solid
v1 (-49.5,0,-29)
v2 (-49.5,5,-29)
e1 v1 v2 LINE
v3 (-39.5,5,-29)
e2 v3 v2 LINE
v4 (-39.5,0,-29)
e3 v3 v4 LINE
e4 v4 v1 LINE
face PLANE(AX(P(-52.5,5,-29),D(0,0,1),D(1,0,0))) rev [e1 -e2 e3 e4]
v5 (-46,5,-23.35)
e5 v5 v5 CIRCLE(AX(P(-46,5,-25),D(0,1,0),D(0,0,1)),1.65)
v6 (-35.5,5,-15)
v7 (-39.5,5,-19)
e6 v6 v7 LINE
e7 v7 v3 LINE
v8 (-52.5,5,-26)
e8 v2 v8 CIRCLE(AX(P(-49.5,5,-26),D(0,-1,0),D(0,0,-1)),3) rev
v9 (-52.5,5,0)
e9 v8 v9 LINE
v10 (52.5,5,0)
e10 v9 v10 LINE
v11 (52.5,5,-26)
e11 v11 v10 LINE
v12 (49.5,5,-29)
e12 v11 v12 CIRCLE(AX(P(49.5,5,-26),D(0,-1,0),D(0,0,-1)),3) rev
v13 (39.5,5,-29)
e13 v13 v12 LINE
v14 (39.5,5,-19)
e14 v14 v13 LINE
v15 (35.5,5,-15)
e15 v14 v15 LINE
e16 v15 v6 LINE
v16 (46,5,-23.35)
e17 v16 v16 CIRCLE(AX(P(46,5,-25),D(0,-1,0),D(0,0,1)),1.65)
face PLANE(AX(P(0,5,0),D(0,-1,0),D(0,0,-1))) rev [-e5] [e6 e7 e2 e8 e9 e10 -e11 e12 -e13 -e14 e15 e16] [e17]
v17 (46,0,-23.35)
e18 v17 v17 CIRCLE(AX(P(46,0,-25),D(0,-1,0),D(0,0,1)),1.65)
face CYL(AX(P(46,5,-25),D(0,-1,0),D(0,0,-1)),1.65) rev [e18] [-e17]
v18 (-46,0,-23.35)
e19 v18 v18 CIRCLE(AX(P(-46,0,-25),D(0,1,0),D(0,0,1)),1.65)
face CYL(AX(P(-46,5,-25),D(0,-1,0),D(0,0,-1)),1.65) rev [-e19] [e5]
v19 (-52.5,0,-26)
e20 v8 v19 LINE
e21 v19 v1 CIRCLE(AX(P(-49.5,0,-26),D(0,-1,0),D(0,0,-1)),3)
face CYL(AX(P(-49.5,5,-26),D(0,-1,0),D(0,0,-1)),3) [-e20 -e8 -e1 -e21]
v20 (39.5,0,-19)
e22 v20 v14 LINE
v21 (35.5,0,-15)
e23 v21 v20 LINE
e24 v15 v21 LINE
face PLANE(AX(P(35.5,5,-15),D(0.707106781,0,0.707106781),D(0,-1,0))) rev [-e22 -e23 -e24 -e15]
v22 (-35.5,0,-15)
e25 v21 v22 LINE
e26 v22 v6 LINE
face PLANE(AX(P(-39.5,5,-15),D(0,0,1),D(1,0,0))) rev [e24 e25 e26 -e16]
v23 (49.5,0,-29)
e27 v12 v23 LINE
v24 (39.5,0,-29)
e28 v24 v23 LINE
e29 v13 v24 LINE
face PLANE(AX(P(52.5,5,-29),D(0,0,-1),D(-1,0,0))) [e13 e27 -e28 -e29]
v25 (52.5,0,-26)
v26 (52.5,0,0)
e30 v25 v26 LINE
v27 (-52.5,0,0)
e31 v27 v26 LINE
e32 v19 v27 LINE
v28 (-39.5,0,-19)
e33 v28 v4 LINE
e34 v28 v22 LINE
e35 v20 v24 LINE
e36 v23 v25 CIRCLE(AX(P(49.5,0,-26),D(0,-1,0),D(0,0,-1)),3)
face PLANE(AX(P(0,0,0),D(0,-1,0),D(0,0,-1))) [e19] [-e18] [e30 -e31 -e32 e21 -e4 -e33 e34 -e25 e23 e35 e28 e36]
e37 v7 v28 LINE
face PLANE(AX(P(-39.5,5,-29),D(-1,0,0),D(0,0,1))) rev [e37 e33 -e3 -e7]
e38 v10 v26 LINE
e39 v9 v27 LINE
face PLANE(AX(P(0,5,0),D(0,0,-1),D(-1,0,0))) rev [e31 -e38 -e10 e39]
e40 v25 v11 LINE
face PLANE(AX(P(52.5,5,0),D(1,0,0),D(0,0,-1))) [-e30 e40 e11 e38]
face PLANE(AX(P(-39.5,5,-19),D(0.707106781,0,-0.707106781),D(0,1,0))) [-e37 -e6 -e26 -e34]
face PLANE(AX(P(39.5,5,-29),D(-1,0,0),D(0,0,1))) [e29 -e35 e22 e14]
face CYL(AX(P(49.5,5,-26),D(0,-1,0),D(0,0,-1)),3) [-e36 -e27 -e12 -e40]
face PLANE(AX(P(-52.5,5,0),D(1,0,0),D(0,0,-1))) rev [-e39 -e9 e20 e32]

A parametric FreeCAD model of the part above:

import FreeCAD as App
import Part
import Sketcher
from FreeCAD import Vector
Q = App.Units.Quantity


def edges_at(feature, points):
    """Names of the edges that pass closest to the given points."""
    edges = feature.Shape.Edges
    near = lambda p: min(range(len(edges)), key=lambda i: edges[i].distToShape(Part.Vertex(*p))[0])
    return sorted({f"Edge{near(p) + 1}" for p in points})


def add_polygon(sketch, points):
    """Adds a closed chain of lines whose ends are joined by coincident constraints."""
    first, n = sketch.GeometryCount, len(points)
    for a, b in zip(points, points[1:] + points[:1]):
        sketch.addGeometry(Part.LineSegment(App.Vector(*a, 0), App.Vector(*b, 0)), False)
    for i in range(n):
        sketch.addConstraint(Sketcher.Constraint("Coincident", first + i, 2, first + (i + 1) % n, 1))

doc = App.newDocument("Part")
body = doc.addObject("PartDesign::Body", "Body")

# Sketch on XZ plane
sketch1 = body.newObject("Sketcher::SketchObject", "Sketch")
sketch1.AttachmentSupport = (doc.getObject("XZ_Plane"), [""])
sketch1.MapMode = "FlatFace"
add_polygon(sketch1, [(-52.5, 0), (0, 0), (0, -15), (-39.5, -15), (-39.5, -29), (-52.5, -29)])  # lines 0-5
sketch1.addGeometry(Part.Circle(Vector(-46, -25, 0), Vector(0, 0, 1), 1.65), False)  # 6
sketch1.addConstraint(Sketcher.Constraint("Horizontal", 0))
sketch1.addConstraint(Sketcher.Constraint("Vertical", 1))
sketch1.addConstraint(Sketcher.Constraint("Horizontal", 2))
sketch1.addConstraint(Sketcher.Constraint("Vertical", 3))
sketch1.addConstraint(Sketcher.Constraint("Horizontal", 4))
sketch1.addConstraint(Sketcher.Constraint("Vertical", 5))
sketch1.addConstraint(Sketcher.Constraint("Coincident", 0, 2, -1, 1))
sketch1.addConstraint(Sketcher.Constraint("Diameter", 6, Q("3.3 mm")))
sketch1.addConstraint(Sketcher.Constraint("DistanceX", 4, 2, 4, 1, Q("13 mm")))
sketch1.addConstraint(Sketcher.Constraint("DistanceY", 1, 2, 1, 1, Q("15 mm")))
sketch1.addConstraint(Sketcher.Constraint("DistanceY", 3, 2, 3, 1, Q("14 mm")))
sketch1.addConstraint(Sketcher.Constraint("DistanceX", 0, 1, 0, 2, Q("52.5 mm")))
sketch1.addConstraint(Sketcher.Constraint("DistanceX", 6, 3, -1, 1, Q("46 mm")))
sketch1.addConstraint(Sketcher.Constraint("DistanceY", 6, 3, -1, 1, Q("25 mm")))
pad1 = body.newObject("PartDesign::Pad", "Pad")
pad1.Profile = sketch1
pad1.Length = 5
pad1.Reversed = True
doc.recompute()

mirrored = body.newObject("PartDesign::Mirrored", "Mirrored")
mirrored.Originals = [pad1]
mirrored.MirrorPlane = (doc.getObject("YZ_Plane"), [""])
body.Tip = mirrored
doc.recompute()

chamfer = body.newObject("PartDesign::Chamfer", "Chamfer")
chamfer.Base = (mirrored, edges_at(mirrored, [(-39.5, 2.5, -15), (39.5, 2.5, -15)]))
chamfer.Size = 4
doc.recompute()

fillet = body.newObject("PartDesign::Fillet", "Fillet")
fillet.Base = (chamfer, edges_at(chamfer, [(-52.5, 2.5, -29), (52.5, 2.5, -29)]))
fillet.Radius = 3

doc.recompute()
